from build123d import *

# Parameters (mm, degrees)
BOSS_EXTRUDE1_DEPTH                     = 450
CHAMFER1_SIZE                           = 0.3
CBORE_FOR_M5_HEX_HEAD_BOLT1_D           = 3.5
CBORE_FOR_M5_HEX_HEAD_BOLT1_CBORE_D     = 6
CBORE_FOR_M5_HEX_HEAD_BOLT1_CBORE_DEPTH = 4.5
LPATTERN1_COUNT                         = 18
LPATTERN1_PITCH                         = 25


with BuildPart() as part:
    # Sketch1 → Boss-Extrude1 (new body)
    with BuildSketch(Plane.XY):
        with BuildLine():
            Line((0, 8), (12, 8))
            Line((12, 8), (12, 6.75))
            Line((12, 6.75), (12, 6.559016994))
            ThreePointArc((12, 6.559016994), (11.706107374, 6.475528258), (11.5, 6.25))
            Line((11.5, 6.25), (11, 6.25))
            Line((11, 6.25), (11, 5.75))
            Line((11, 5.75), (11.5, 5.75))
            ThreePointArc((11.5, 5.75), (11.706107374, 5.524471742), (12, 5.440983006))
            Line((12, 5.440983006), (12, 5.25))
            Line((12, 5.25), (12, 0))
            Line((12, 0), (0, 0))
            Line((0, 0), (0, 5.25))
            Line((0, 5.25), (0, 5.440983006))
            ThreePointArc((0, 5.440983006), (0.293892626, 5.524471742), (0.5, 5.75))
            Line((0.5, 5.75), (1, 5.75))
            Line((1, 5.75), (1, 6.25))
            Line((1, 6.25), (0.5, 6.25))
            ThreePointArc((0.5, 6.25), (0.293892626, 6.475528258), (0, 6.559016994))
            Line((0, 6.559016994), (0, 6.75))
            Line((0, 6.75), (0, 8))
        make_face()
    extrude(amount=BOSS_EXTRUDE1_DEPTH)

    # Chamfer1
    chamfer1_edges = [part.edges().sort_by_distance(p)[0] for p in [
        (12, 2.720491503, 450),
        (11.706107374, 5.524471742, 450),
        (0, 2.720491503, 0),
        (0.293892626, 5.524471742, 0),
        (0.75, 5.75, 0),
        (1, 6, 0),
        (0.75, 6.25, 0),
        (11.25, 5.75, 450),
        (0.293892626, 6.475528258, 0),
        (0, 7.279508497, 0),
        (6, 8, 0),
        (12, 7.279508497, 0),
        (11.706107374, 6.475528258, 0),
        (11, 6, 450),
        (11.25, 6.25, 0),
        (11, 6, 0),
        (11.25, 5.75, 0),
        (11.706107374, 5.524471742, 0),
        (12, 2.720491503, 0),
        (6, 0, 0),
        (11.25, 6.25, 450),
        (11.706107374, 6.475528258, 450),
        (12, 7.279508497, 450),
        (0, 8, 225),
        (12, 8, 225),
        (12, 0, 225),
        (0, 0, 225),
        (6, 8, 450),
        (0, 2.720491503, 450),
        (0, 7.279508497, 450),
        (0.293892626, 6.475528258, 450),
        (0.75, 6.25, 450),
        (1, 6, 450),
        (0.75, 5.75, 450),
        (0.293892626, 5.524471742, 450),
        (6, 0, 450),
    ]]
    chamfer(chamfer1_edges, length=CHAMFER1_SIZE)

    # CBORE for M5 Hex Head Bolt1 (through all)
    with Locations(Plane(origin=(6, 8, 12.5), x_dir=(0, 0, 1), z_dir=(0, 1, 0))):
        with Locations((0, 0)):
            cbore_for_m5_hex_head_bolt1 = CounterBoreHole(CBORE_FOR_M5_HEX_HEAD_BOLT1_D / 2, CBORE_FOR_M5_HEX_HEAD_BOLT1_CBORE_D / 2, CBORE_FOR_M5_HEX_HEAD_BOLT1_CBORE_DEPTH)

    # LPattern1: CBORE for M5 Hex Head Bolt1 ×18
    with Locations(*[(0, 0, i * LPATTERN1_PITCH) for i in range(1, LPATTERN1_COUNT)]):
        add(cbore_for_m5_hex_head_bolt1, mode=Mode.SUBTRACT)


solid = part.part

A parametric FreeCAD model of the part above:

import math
import FreeCAD as App
import Part
import Sketcher
Q = App.Units.Quantity


def edges_at(feature, points):
    """Names of the edges that pass closest to the given points."""
    edges = feature.Shape.Edges
    near = lambda p: min(range(len(edges)), key=lambda i: edges[i].distToShape(Part.Vertex(*p))[0])
    return sorted({f"Edge{near(p) + 1}" for p in points})

doc = App.newDocument("Part")
body = doc.addObject("PartDesign::Body", "Body")

sketch1 = body.newObject("Sketcher::SketchObject", "Sketch")
sketch1.AttachmentSupport = (doc.getObject("XY_Plane"), [""])
sketch1.MapMode = "FlatFace"
sketch1.addGeometry(Part.LineSegment(App.Vector(12, 8, 0), App.Vector(0, 8, 0)), False)
sketch1.addGeometry(Part.LineSegment(App.Vector(0, 8, 0), App.Vector(0, 6.6, 0)), False)
sketch1.addGeometry(Part.ArcOfCircle(Part.Circle(App.Vector(0, 6, 0), App.Vector(0, 0, 1), 0.6), math.radians(27), math.radians(90)), False)
sketch1.addGeometry(Part.LineSegment(App.Vector(0.5, 6.2, 0), App.Vector(1, 6.2, 0)), False)
sketch1.addGeometry(Part.LineSegment(App.Vector(1, 6.2, 0), App.Vector(1, 5.8, 0)), False)
sketch1.addGeometry(Part.LineSegment(App.Vector(1, 5.8, 0), App.Vector(0.5, 5.8, 0)), False)
sketch1.addGeometry(Part.ArcOfCircle(Part.Circle(App.Vector(0, 6, 0), App.Vector(0, 0, 1), 0.6), math.radians(-90), math.radians(-27)), False)
sketch1.addGeometry(Part.LineSegment(App.Vector(0, 5.4, 0), App.Vector(0, 0, 0)), False)
sketch1.addGeometry(Part.LineSegment(App.Vector(0, 0, 0), App.Vector(12, 0, 0)), False)
sketch1.addGeometry(Part.LineSegment(App.Vector(12, 0, 0), App.Vector(12, 5.4, 0)), False)
sketch1.addGeometry(Part.ArcOfCircle(Part.Circle(App.Vector(12, 6, 0), App.Vector(0, 0, 1), 0.6), math.radians(-153), math.radians(-90)), False)
sketch1.addGeometry(Part.LineSegment(App.Vector(11.5, 5.8, 0), App.Vector(11, 5.8, 0)), False)
sketch1.addGeometry(Part.LineSegment(App.Vector(11, 5.8, 0), App.Vector(11, 6.2, 0)), False)
sketch1.addGeometry(Part.LineSegment(App.Vector(11, 6.2, 0), App.Vector(11.5, 6.2, 0)), False)
sketch1.addGeometry(Part.ArcOfCircle(Part.Circle(App.Vector(12, 6, 0), App.Vector(0, 0, 1), 0.6), math.radians(90), math.radians(153)), False)
sketch1.addGeometry(Part.LineSegment(App.Vector(12, 6.6, 0), App.Vector(12, 8, 0)), False)
sketch1.addConstraint(Sketcher.Constraint("Coincident", 0, 2, 1, 1))
sketch1.addConstraint(Sketcher.Constraint("Coincident", 1, 2, 2, 2))
sketch1.addConstraint(Sketcher.Constraint("Coincident", 2, 1, 3, 1))
sketch1.addConstraint(Sketcher.Constraint("Coincident", 3, 2, 4, 1))
sketch1.addConstraint(Sketcher.Constraint("Coincident", 4, 2, 5, 1))
sketch1.addConstraint(Sketcher.Constraint("Coincident", 5, 2, 6, 2))
sketch1.addConstraint(Sketcher.Constraint("Coincident", 6, 1, 7, 1))
sketch1.addConstraint(Sketcher.Constraint("Coincident", 7, 2, 8, 1))
sketch1.addConstraint(Sketcher.Constraint("Coincident", 8, 2, 9, 1))
sketch1.addConstraint(Sketcher.Constraint("Coincident", 9, 2, 10, 2))
sketch1.addConstraint(Sketcher.Constraint("Coincident", 10, 1, 11, 1))
sketch1.addConstraint(Sketcher.Constraint("Coincident", 11, 2, 12, 1))
sketch1.addConstraint(Sketcher.Constraint("Coincident", 12, 2, 13, 1))
sketch1.addConstraint(Sketcher.Constraint("Coincident", 13, 2, 14, 2))
sketch1.addConstraint(Sketcher.Constraint("Coincident", 14, 1, 15, 1))
sketch1.addConstraint(Sketcher.Constraint("Coincident", 15, 2, 0, 1))
sketch1.addConstraint(Sketcher.Constraint("Horizontal", 0))
sketch1.addConstraint(Sketcher.Constraint("Vertical", 1))
sketch1.addConstraint(Sketcher.Constraint("Horizontal", 3))
sketch1.addConstraint(Sketcher.Constraint("Vertical", 4))
sketch1.addConstraint(Sketcher.Constraint("Horizontal", 5))
sketch1.addConstraint(Sketcher.Constraint("Vertical", 7))
sketch1.addConstraint(Sketcher.Constraint("Horizontal", 8))
sketch1.addConstraint(Sketcher.Constraint("Vertical", 9))
sketch1.addConstraint(Sketcher.Constraint("Horizontal", 11))
sketch1.addConstraint(Sketcher.Constraint("Vertical", 12))
sketch1.addConstraint(Sketcher.Constraint("Horizontal", 13))
sketch1.addConstraint(Sketcher.Constraint("Vertical", 15))
sketch1.addConstraint(Sketcher.Constraint("Coincident", 7, 2, -1, 1))
sketch1.addConstraint(Sketcher.Constraint("Coincident", 6, 3, 2, 3))
sketch1.addConstraint(Sketcher.Constraint("Coincident", 14, 3, 10, 3))
sketch1.addConstraint(Sketcher.Constraint("Equal", 2, 6))
sketch1.addConstraint(Sketcher.Constraint("Equal", 6, 10))
sketch1.addConstraint(Sketcher.Constraint("Equal", 10, 14))
sketch1.addConstraint(Sketcher.Constraint("PointOnObject", 2, 3, -2))
sketch1.addConstraint(Sketcher.Constraint("PointOnObject", 0, 2, -2))
sketch1.addConstraint(Sketcher.Constraint("Horizontal", 6, 3, 10, 3))
sketch1.addConstraint(Sketcher.Constraint("Horizontal", 5, 2, 10, 1))
sketch1.addConstraint(Sketcher.Constraint("Horizontal", 3, 2, 12, 2))
sketch1.addConstraint(Sketcher.Constraint("Vertical", 2, 1, 5, 2))
sketch1.addConstraint(Sketcher.Constraint("Vertical", 14, 3, 8, 2))
sketch1.addConstraint(Sketcher.Constraint("Vertical", 9, 2, 14, 1))
sketch1.addConstraint(Sketcher.Constraint("Equal", 5, 11))
sketch1.addConstraint(Sketcher.Constraint("Equal", 13, 4))
sketch1.addConstraint(Sketcher.Constraint("DistanceX", 0, 2, 0, 1, Q("12 mm")))
sketch1.addConstraint(Sketcher.Constraint("DistanceX", 3, 1, 3, 2, Q("0.5 mm")))
sketch1.addConstraint(Sketcher.Constraint("DistanceY", -1, 1, 2, 3, Q("6 mm")))
sketch1.addConstraint(Sketcher.Constraint("DistanceY", -1, 1, 0, 2, Q("8 mm")))
sketch1.addConstraint(Sketcher.Constraint("DistanceX", -1, 1, 3, 2, Q("1 mm")))
pad1 = body.newObject("PartDesign::Pad", "Pad")
pad1.Profile = sketch1
pad1.Length = 450
doc.recompute()

chamfer = body.newObject("PartDesign::Chamfer", "Chamfer")
chamfer.Base = (pad1, edges_at(pad1, [
    (12, 2.72, 450),
    (11.706, 5.524, 450),
    (0, 2.72, 0),
    (0.294, 5.524, 0),
    (0.75, 5.75, 0),
    (1, 6, 0),
    (0.75, 6.25, 0),
    (11.25, 5.75, 450),
    (0.294, 6.476, 0),
    (0, 7.28, 0),
    (6, 8, 0),
    (12, 7.28, 0),
    (11.706, 6.476, 0),
    (11, 6, 450),
    (11.25, 6.25, 0),
    (11, 6, 0),
    (11.25, 5.75, 0),
    (11.706, 5.524, 0),
    (12, 2.72, 0),
    (6, 0, 0),
    (11.25, 6.25, 450),
    (11.706, 6.476, 450),
    (12, 7.28, 450),
    (0, 8, 225),
    (12, 8, 225),
    (12, 0, 225),
    (0, 0, 225),
    (6, 8, 450),
    (0, 2.72, 450),
    (0, 7.28, 450),
    (0.294, 6.476, 450),
    (0.75, 6.25, 450),
    (1, 6, 450),
    (0.75, 5.75, 450),
    (0.294, 5.524, 450),
    (6, 0, 450),
]))
chamfer.Size = 0.3

sketch2 = body.newObject("Sketcher::SketchObject", "Sketch001")
sketch2.AttachmentSupport = (doc.getObject("XZ_Plane"), [""])
sketch2.MapMode = "FlatFace"
sketch2.AttachmentOffset = App.Placement(App.Vector(0, 0, -8), App.Rotation())
sketch2.addGeometry(Part.Circle(App.Vector(6, 12.5, 0), App.Vector(0, 0, 1), 1.8), False)
sketch2.addConstraint(Sketcher.Constraint("Diameter", 0, Q("3.5 mm")))
sketch2.addConstraint(Sketcher.Constraint("DistanceX", -1, 1, 0, 3, Q("6 mm")))
sketch2.addConstraint(Sketcher.Constraint("DistanceY", -1, 1, 0, 3, Q("12.5 mm")))
doc.recompute()
hole = body.newObject("PartDesign::Hole", "Hole")
hole.Profile = sketch2
hole.ThreadType = "None"
hole.Diameter = 3.5
hole.DepthType = "ThroughAll"
hole.HoleCutType = "Counterbore"
hole.HoleCutDiameter = 6
hole.HoleCutDepth = 4.5
hole.Reversed = True
doc.recompute()

linearpattern = body.newObject("PartDesign::LinearPattern", "LinearPattern")
linearpattern.Originals = [hole]
linearpattern.Direction = (doc.getObject("Z_Axis"), [""])
linearpattern.Mode = "offset"
linearpattern.Offset = 25
linearpattern.Occurrences = 18
body.Tip = linearpattern

doc.recompute()
